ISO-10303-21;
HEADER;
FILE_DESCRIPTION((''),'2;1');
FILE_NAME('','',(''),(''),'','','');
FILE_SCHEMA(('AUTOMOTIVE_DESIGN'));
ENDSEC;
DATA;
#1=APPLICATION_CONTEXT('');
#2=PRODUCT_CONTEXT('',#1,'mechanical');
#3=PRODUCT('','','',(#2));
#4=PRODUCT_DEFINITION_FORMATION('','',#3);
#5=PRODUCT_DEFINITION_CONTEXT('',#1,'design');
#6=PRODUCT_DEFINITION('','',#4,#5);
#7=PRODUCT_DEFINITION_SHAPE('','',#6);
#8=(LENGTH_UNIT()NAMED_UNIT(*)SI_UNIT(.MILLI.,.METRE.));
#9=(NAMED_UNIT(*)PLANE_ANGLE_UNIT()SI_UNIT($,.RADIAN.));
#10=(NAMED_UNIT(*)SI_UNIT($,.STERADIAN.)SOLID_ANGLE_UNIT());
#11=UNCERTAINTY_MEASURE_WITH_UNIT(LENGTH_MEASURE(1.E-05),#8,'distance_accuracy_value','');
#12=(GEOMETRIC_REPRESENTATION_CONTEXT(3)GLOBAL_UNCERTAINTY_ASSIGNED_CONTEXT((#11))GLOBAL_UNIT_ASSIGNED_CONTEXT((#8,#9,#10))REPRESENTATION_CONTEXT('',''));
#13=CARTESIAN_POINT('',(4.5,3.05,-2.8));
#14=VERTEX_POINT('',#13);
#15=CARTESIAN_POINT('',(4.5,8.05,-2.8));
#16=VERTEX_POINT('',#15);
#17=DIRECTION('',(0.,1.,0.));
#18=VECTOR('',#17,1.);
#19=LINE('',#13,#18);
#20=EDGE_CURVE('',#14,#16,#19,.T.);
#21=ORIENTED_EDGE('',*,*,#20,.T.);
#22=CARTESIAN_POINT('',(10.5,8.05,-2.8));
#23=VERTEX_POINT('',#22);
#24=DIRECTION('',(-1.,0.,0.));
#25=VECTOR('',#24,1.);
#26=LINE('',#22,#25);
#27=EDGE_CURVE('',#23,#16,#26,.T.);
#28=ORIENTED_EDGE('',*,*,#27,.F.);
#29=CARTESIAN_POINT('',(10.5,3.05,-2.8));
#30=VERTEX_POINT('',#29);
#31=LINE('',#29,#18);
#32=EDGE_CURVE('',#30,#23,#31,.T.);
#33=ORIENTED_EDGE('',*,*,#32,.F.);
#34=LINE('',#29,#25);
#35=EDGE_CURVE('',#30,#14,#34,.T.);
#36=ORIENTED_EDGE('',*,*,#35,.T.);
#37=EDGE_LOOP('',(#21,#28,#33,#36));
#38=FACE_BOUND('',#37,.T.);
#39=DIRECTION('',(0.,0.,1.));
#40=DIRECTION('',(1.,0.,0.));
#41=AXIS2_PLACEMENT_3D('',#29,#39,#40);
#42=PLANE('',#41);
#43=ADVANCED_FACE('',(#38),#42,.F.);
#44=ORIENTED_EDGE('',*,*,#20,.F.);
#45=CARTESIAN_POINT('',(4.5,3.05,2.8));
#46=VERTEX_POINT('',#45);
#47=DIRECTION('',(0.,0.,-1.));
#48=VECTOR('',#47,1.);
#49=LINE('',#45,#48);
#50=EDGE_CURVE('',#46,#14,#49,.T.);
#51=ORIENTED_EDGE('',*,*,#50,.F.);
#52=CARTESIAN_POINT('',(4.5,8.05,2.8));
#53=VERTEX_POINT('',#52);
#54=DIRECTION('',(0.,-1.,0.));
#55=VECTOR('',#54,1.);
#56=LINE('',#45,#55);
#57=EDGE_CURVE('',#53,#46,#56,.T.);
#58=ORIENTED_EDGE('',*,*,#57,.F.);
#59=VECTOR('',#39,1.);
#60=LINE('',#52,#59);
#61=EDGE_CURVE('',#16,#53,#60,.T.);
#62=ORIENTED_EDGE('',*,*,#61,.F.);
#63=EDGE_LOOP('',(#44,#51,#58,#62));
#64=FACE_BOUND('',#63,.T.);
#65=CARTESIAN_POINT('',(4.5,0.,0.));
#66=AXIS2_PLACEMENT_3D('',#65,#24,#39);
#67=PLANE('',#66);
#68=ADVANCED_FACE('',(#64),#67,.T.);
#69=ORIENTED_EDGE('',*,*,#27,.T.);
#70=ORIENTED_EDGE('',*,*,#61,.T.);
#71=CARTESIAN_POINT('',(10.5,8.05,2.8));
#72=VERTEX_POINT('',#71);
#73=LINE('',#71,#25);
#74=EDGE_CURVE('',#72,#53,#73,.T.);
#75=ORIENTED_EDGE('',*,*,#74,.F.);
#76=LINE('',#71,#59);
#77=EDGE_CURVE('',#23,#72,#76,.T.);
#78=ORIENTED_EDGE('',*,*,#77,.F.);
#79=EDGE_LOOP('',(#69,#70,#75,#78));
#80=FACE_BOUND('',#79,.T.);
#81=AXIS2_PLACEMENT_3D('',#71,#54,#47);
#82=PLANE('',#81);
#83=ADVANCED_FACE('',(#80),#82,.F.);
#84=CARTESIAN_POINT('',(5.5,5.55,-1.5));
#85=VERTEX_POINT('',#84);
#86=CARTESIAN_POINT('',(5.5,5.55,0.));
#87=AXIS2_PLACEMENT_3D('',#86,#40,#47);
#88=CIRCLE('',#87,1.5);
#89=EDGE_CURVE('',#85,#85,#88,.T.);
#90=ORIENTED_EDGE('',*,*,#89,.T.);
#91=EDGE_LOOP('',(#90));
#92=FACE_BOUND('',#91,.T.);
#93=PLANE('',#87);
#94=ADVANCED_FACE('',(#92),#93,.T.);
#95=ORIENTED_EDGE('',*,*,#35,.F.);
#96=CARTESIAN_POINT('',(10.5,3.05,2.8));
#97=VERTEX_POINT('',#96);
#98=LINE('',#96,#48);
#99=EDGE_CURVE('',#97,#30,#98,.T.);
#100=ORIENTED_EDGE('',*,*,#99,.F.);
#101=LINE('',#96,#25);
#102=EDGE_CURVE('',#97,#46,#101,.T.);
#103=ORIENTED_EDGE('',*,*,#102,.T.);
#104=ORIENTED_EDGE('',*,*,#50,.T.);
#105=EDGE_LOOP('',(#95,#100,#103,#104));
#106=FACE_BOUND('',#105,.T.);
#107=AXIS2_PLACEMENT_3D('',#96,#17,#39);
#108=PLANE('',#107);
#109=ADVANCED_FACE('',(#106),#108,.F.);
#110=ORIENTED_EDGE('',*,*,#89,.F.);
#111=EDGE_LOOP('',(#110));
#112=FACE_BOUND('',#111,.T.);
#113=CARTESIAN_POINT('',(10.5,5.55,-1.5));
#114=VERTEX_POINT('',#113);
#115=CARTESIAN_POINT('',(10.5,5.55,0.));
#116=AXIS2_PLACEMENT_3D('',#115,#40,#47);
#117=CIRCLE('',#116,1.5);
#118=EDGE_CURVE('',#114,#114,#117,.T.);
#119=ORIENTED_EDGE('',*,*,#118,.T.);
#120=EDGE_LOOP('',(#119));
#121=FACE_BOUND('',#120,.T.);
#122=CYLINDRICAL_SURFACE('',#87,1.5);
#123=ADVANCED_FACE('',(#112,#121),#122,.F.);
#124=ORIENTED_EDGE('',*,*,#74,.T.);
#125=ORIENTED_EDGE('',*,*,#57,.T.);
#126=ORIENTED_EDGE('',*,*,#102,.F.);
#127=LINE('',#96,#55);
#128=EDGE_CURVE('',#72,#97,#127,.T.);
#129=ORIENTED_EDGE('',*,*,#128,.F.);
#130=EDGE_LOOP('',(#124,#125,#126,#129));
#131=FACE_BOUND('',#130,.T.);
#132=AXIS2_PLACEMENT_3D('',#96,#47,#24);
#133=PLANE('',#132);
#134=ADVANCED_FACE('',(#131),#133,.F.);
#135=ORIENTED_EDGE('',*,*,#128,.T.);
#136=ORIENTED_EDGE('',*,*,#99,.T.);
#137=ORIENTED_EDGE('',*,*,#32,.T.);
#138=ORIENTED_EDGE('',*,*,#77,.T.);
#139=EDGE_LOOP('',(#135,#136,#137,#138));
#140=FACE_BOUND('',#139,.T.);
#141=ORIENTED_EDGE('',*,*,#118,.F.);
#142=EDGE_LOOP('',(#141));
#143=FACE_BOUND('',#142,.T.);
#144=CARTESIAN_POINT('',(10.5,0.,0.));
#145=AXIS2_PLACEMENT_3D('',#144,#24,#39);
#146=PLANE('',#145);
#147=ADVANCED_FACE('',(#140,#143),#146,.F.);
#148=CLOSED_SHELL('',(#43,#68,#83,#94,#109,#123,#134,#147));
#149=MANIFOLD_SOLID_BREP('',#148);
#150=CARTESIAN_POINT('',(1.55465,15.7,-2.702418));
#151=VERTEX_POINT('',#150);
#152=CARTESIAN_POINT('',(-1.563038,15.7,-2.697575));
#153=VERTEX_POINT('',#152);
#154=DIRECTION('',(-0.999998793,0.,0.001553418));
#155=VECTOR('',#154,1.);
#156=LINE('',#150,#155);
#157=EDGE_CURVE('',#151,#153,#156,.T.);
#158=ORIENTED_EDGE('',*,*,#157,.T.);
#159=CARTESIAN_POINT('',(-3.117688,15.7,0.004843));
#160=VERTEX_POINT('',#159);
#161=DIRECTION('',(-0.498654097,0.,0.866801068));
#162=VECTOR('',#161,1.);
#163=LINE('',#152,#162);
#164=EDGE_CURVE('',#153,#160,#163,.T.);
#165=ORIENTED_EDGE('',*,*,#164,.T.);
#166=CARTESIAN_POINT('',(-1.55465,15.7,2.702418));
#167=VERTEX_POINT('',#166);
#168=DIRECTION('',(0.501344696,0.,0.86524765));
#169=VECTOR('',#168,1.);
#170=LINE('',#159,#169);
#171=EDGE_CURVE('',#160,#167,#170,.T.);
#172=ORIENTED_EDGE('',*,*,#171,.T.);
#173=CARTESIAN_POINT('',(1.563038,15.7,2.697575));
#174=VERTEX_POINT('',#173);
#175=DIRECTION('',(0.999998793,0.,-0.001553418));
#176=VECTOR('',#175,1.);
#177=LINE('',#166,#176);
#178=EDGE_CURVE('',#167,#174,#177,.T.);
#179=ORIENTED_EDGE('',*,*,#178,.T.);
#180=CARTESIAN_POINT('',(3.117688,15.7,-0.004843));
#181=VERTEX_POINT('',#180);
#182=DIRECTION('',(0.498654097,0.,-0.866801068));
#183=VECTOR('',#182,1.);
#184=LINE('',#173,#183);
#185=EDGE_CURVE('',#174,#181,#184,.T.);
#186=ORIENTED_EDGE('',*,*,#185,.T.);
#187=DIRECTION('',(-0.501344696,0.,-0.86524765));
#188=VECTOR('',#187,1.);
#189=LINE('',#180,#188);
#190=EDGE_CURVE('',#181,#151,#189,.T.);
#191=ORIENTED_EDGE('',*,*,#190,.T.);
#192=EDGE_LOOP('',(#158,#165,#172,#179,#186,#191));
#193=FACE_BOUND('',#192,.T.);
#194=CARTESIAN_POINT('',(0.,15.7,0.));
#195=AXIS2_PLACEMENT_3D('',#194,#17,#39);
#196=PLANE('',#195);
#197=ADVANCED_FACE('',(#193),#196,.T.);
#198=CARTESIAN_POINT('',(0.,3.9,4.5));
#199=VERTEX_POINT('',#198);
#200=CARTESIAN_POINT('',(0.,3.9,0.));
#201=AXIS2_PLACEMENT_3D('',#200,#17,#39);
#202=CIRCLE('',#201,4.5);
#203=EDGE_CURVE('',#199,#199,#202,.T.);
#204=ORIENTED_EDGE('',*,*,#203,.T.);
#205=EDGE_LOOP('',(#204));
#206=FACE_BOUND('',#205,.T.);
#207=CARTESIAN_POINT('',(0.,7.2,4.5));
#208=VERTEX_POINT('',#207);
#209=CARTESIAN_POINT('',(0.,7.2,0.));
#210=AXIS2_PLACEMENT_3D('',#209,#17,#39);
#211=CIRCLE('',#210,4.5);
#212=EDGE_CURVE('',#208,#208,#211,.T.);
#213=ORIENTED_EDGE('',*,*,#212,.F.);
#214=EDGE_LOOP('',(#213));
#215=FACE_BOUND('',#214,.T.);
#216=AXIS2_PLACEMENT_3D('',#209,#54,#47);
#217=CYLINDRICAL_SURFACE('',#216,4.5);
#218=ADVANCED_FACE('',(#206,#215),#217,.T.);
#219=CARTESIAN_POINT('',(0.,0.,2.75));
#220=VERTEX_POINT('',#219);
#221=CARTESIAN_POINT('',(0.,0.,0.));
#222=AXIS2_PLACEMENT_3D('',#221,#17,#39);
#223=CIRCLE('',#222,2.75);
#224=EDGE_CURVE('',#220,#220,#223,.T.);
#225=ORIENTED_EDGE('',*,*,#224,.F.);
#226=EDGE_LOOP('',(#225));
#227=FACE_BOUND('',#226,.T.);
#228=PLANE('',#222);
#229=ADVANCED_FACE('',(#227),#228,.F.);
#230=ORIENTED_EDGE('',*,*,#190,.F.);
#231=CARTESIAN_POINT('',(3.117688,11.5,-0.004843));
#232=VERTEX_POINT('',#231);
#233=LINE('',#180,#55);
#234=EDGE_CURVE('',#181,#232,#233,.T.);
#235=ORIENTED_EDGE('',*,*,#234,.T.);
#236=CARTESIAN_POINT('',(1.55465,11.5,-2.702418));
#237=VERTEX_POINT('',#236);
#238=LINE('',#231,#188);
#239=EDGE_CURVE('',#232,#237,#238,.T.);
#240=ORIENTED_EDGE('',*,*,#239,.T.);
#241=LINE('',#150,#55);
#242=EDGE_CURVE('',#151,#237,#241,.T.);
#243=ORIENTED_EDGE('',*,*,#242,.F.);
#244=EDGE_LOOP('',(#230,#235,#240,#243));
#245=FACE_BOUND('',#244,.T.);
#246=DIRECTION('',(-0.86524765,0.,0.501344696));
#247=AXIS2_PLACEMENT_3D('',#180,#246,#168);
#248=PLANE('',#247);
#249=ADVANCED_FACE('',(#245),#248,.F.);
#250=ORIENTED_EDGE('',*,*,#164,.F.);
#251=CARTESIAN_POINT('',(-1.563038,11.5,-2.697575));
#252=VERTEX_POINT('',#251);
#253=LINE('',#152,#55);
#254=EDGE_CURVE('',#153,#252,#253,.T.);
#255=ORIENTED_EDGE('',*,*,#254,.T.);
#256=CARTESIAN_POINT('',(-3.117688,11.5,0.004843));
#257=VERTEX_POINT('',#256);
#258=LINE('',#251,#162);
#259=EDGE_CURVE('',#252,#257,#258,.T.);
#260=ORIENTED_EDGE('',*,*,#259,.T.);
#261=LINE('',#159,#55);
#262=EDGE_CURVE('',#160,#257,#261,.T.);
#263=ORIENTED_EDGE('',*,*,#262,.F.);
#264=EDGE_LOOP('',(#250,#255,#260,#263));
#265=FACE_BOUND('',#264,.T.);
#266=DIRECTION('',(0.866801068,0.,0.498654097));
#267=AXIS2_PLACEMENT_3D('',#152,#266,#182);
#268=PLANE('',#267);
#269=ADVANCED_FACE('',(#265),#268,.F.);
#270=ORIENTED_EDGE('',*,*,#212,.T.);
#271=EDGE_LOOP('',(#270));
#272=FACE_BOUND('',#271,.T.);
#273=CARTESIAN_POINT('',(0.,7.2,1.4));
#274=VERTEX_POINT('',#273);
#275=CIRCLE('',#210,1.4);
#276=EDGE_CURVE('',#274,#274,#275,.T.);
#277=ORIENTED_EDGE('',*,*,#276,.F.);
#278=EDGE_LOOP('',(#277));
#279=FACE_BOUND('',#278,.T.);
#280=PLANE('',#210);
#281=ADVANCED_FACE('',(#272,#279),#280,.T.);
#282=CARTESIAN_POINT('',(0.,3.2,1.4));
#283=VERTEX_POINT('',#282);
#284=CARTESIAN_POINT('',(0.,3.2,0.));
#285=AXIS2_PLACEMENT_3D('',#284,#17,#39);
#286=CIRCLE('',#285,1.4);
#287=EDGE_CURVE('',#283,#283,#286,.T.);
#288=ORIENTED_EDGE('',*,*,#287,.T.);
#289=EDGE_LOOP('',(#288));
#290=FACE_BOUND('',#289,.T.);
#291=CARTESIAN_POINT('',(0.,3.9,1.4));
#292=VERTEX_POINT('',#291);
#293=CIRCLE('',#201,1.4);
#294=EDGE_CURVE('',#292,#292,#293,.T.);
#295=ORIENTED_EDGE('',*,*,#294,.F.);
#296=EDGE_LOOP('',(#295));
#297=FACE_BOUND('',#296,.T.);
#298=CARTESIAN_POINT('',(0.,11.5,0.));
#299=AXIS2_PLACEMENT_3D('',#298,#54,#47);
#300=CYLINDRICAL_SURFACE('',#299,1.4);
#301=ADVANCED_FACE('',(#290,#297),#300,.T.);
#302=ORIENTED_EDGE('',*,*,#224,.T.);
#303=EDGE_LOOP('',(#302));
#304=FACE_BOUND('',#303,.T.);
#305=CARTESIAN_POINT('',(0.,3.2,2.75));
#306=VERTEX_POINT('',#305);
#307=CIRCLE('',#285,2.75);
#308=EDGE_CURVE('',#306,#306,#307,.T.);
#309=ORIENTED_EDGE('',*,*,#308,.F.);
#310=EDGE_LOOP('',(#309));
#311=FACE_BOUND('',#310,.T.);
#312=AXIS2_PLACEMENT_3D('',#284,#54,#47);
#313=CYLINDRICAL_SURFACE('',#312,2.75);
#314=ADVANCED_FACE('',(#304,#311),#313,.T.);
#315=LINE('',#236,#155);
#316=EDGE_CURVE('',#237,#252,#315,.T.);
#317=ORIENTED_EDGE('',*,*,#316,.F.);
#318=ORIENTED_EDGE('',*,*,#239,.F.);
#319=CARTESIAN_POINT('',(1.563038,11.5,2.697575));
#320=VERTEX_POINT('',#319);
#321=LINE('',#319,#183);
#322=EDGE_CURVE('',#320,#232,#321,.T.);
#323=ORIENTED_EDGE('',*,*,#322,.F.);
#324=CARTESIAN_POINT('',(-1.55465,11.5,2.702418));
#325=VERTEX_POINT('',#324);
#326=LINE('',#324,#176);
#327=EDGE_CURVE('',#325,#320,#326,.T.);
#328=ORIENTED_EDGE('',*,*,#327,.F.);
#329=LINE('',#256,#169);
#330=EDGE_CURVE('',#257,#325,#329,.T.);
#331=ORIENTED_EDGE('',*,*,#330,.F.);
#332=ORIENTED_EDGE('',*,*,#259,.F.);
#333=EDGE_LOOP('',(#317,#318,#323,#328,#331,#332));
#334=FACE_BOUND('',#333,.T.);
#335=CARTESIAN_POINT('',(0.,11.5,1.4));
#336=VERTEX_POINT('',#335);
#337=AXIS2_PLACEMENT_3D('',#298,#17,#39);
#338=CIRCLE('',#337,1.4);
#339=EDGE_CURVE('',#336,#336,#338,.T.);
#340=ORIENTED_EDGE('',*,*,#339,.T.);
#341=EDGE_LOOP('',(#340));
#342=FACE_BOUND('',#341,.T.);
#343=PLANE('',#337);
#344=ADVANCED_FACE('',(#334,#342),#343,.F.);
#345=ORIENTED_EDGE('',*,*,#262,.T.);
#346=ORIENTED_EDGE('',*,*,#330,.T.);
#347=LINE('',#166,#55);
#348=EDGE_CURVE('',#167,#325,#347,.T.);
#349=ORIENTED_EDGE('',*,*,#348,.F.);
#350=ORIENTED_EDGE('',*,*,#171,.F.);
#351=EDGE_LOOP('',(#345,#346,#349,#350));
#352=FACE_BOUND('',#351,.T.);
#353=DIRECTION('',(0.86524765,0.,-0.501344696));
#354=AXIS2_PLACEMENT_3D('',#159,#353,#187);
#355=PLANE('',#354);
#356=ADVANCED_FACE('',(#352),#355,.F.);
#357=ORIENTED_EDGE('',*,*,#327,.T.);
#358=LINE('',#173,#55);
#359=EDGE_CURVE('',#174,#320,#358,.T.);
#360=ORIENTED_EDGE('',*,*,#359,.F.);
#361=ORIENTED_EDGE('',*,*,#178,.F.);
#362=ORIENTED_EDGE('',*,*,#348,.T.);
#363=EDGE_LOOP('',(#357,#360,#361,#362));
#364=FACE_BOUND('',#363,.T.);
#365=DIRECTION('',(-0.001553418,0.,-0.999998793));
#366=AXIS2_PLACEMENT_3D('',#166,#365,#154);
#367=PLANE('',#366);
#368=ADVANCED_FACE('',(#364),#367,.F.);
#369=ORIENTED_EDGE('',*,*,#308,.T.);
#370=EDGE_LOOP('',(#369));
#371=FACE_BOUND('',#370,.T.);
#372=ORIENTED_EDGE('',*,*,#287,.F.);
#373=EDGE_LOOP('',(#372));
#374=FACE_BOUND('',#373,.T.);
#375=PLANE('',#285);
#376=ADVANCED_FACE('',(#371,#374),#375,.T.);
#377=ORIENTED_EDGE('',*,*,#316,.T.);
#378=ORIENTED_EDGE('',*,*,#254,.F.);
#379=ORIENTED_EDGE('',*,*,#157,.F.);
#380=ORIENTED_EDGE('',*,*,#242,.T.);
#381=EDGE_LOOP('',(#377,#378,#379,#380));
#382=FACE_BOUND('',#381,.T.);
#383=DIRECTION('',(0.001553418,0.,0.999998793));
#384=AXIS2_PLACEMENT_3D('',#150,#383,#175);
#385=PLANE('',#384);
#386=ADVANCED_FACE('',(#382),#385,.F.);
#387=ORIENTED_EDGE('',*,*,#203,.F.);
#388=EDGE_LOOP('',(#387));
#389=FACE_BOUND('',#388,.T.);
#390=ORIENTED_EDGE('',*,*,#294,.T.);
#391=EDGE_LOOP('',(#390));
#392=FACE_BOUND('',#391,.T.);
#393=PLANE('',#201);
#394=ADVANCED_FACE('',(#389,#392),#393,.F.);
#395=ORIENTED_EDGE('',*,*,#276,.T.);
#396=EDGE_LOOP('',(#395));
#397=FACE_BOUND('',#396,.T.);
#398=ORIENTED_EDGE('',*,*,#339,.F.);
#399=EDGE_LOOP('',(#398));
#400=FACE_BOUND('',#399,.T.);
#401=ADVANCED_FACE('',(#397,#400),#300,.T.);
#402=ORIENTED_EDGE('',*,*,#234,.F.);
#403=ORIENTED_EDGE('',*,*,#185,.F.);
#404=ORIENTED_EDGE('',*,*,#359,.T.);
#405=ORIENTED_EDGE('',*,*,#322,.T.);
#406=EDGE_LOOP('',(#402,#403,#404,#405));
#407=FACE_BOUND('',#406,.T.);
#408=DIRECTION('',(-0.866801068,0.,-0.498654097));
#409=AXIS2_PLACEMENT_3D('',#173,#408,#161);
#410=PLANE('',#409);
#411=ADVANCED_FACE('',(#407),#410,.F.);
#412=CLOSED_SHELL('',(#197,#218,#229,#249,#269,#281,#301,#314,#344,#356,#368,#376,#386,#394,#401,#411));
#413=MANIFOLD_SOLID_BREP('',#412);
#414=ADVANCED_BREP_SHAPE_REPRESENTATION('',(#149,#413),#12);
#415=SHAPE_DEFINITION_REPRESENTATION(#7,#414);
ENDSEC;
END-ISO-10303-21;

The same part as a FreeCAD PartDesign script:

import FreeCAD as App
import Part
import Sketcher
Q = App.Units.Quantity

doc = App.newDocument("Part")
body = doc.addObject("PartDesign::Body", "Body")

# Sketch on XZ plane
sketch1 = body.newObject("Sketcher::SketchObject", "Sketch")
sketch1.AttachmentSupport = (doc.getObject("XZ_Plane"), [""])
sketch1.MapMode = "FlatFace"
sketch1.addGeometry(Part.Circle(App.Vector(0, 0, 0), App.Vector(0, 0, 1), 2.8), False)
sketch1.addConstraint(Sketcher.Constraint("Coincident", 0, 3, -1, 1))
sketch1.addConstraint(Sketcher.Constraint("Diameter", 0, Q("5.5 mm")))
pad1 = body.newObject("PartDesign::Pad", "Pad")
pad1.Profile = sketch1
pad1.Length = 3.2
pad1.Reversed = True

# Sketch on XZ plane
sketch2 = body.newObject("Sketcher::SketchObject", "Sketch001")
sketch2.AttachmentSupport = (doc.getObject("XZ_Plane"), [""])
sketch2.MapMode = "FlatFace"
sketch2.AttachmentOffset = App.Placement(App.Vector(0, 0, -3.2), App.Rotation())
sketch2.addGeometry(Part.Circle(App.Vector(0, 0, 0), App.Vector(0, 0, 1), 1.4), False)
sketch2.addConstraint(Sketcher.Constraint("Coincident", 0, 3, -1, 1))
sketch2.addConstraint(Sketcher.Constraint("Diameter", 0, Q("2.8 mm")))
pad2 = body.newObject("PartDesign::Pad", "Pad001")
pad2.Profile = sketch2
pad2.Length = 8.3
pad2.Reversed = True

# Sketch on XZ plane
sketch3 = body.newObject("Sketcher::SketchObject", "Sketch002")
sketch3.AttachmentSupport = (doc.getObject("XZ_Plane"), [""])
sketch3.MapMode = "FlatFace"
sketch3.AttachmentOffset = App.Placement(App.Vector(0, 0, -11.5), App.Rotation())
sketch3.addGeometry(Part.LineSegment(App.Vector(1.6, -2.7, 0), App.Vector(-1.6, -2.7, 0)), False)
sketch3.addGeometry(Part.LineSegment(App.Vector(-1.6, -2.7, 0), App.Vector(-3.1, 0, 0)), False)
sketch3.addGeometry(Part.LineSegment(App.Vector(-3.1, 0, 0), App.Vector(-1.6, 2.7, 0)), False)
sketch3.addGeometry(Part.LineSegment(App.Vector(-1.6, 2.7, 0), App.Vector(1.6, 2.7, 0)), False)
sketch3.addGeometry(Part.LineSegment(App.Vector(1.6, 2.7, 0), App.Vector(3.1, 0, 0)), False)
sketch3.addGeometry(Part.LineSegment(App.Vector(3.1, 0, 0), App.Vector(1.6, -2.7, 0)), False)
sketch3.addConstraint(Sketcher.Constraint("Coincident", 0, 2, 1, 1))
sketch3.addConstraint(Sketcher.Constraint("Coincident", 1, 2, 2, 1))
sketch3.addConstraint(Sketcher.Constraint("Coincident", 2, 2, 3, 1))
sketch3.addConstraint(Sketcher.Constraint("Coincident", 3, 2, 4, 1))
sketch3.addConstraint(Sketcher.Constraint("Coincident", 4, 2, 5, 1))
sketch3.addConstraint(Sketcher.Constraint("Coincident", 5, 2, 0, 1))
sketch3.addConstraint(Sketcher.Constraint("Symmetric", 0, 2, 3, 2, -1, 1))
sketch3.addConstraint(Sketcher.Constraint("Symmetric", 1, 2, 4, 2, -1, 1))
sketch3.addConstraint(Sketcher.Constraint("Symmetric", 2, 2, 5, 2, -1, 1))
sketch3.addConstraint(Sketcher.Constraint("Equal", 0, 1))
sketch3.addConstraint(Sketcher.Constraint("Equal", 1, 2))
sketch3.addConstraint(Sketcher.Constraint("DistanceX", 2, 2, 5, 2, Q("3.109299 mm")))
sketch3.addConstraint(Sketcher.Constraint("Distance", 0, Q("3.117691 mm")))
sketch3.addConstraint(Sketcher.Constraint("DistanceY", -1, 1, 2, 2, Q("2.702418 mm")))
sketch3.addConstraint(Sketcher.Constraint("DistanceX", 1, 2, 0, 2, Q("1.55465 mm")))
pad3 = body.newObject("PartDesign::Pad", "Pad002")
pad3.Profile = sketch3
pad3.Length = 4.2
pad3.Reversed = True

# Sketch on XZ plane
sketch4 = body.newObject("Sketcher::SketchObject", "Sketch003")
sketch4.AttachmentSupport = (doc.getObject("XZ_Plane"), [""])
sketch4.MapMode = "FlatFace"
sketch4.AttachmentOffset = App.Placement(App.Vector(0, 0, -3.9), App.Rotation())
sketch4.addGeometry(Part.Circle(App.Vector(0, 0, 0), App.Vector(0, 0, 1), 4.5), False)
sketch4.addConstraint(Sketcher.Constraint("Coincident", 0, 3, -1, 1))
sketch4.addConstraint(Sketcher.Constraint("Diameter", 0, Q("9 mm")))
pad4 = body.newObject("PartDesign::Pad", "Pad003")
pad4.Profile = sketch4
pad4.Length = 3.3
pad4.Reversed = True
body2 = doc.addObject("PartDesign::Body", "Body001")

# Sketch on YZ plane
sketch5 = body2.newObject("Sketcher::SketchObject", "Sketch004")
sketch5.AttachmentSupport = (doc.getObject("YZ_Plane001"), [""])
sketch5.MapMode = "FlatFace"
sketch5.AttachmentOffset = App.Placement(App.Vector(0, 0, 4.5), App.Rotation())
sketch5.addGeometry(Part.LineSegment(App.Vector(8, 3, 0), App.Vector(3, 3, 0)), False)
sketch5.addGeometry(Part.LineSegment(App.Vector(3, 3, 0), App.Vector(3, -3, 0)), False)
sketch5.addGeometry(Part.LineSegment(App.Vector(3, -3, 0), App.Vector(8, -3, 0)), False)
sketch5.addGeometry(Part.LineSegment(App.Vector(8, -3, 0), App.Vector(8, 3, 0)), False)
sketch5.addConstraint(Sketcher.Constraint("Coincident", 0, 2, 1, 1))
sketch5.addConstraint(Sketcher.Constraint("Coincident", 1, 2, 2, 1))
sketch5.addConstraint(Sketcher.Constraint("Coincident", 2, 2, 3, 1))
sketch5.addConstraint(Sketcher.Constraint("Coincident", 3, 2, 0, 1))
sketch5.addConstraint(Sketcher.Constraint("Horizontal", 0))
sketch5.addConstraint(Sketcher.Constraint("Vertical", 1))
sketch5.addConstraint(Sketcher.Constraint("Horizontal", 2))
sketch5.addConstraint(Sketcher.Constraint("Vertical", 3))
sketch5.addConstraint(Sketcher.Constraint("DistanceX", 0, 2, 0, 1, Q("5 mm")))
sketch5.addConstraint(Sketcher.Constraint("DistanceY", 1, 2, 1, 1, Q("5.6 mm")))
sketch5.addConstraint(Sketcher.Constraint("DistanceY", -1, 1, 0, 2, Q("2.8 mm")))
sketch5.addConstraint(Sketcher.Constraint("DistanceX", -1, 1, 0, 2, Q("3.05 mm")))
pad5 = body2.newObject("PartDesign::Pad", "Pad004")
pad5.Profile = sketch5
pad5.Length = 6

# Sketch on YZ plane
sketch6 = body2.newObject("Sketcher::SketchObject", "Sketch005")
sketch6.AttachmentSupport = (doc.getObject("YZ_Plane001"), [""])
sketch6.MapMode = "FlatFace"
sketch6.AttachmentOffset = App.Placement(App.Vector(0, 0, 10.5), App.Rotation())
sketch6.addGeometry(Part.Circle(App.Vector(5.5, 0, 0), App.Vector(0, 0, 1), 1.5), False)
sketch6.addConstraint(Sketcher.Constraint("PointOnObject", 0, 3, -1))
sketch6.addConstraint(Sketcher.Constraint("Diameter", 0, Q("3 mm")))
sketch6.addConstraint(Sketcher.Constraint("DistanceX", -1, 1, 0, 3, Q("5.55 mm")))
pocket1 = body2.newObject("PartDesign::Pocket", "Pocket")
pocket1.Profile = sketch6
pocket1.Length = 5

doc.recompute()
